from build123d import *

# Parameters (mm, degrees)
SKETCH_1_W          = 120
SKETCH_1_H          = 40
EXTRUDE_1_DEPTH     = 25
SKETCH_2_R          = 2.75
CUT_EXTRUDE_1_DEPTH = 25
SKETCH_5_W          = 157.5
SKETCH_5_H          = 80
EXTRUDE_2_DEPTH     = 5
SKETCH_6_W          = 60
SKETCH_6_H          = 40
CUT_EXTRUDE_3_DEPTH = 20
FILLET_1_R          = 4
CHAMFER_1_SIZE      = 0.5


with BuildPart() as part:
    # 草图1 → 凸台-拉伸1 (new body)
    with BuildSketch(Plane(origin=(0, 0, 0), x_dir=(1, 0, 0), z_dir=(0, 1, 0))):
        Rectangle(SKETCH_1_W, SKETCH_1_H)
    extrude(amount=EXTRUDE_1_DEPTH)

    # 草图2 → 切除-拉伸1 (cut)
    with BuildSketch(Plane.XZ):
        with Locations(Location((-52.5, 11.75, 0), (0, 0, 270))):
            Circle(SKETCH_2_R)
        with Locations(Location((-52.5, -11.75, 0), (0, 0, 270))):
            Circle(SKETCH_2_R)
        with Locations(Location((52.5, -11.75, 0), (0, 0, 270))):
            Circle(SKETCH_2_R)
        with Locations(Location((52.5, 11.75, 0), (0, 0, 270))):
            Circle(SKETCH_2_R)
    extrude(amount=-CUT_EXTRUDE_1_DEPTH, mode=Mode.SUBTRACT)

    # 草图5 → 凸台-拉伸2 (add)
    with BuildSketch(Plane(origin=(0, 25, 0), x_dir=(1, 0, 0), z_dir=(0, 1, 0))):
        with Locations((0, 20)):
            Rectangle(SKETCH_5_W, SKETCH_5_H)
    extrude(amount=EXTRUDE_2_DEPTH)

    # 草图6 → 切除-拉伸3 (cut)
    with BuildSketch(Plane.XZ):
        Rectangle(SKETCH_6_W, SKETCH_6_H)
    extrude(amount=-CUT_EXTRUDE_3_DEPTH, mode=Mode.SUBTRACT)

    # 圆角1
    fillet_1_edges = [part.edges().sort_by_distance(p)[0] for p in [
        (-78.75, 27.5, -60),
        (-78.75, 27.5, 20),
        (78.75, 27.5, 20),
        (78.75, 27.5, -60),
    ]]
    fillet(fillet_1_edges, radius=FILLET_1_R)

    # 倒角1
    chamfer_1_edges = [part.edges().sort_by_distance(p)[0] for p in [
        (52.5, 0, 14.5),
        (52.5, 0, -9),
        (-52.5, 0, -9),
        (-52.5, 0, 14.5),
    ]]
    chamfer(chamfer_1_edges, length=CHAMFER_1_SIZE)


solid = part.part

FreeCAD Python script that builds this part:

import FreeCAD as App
import Part
import Sketcher
from FreeCAD import Vector
Q = App.Units.Quantity


def edges_at(feature, points):
    """Names of the edges that pass closest to the given points."""
    edges = feature.Shape.Edges
    near = lambda p: min(range(len(edges)), key=lambda i: edges[i].distToShape(Part.Vertex(*p))[0])
    return sorted({f"Edge{near(p) + 1}" for p in points})

doc = App.newDocument("Part")
params = doc.addObject("Spreadsheet::Sheet", "Params")
for row, (alias, value) in enumerate([
    ("sketch1_width", "120 mm"),
    ("sketch1_height", "40 mm"),
    ("pad1_length", "25 mm"),
    ("sketch2_diameter", "5.5 mm"),
    ("pocket1_length", "25 mm"),
    ("sketch3_height", "80 mm"),
    ("sketch3_width", "157.5 mm"),
    ("pad2_length", "5 mm"),
    ("sketch4_width", "60 mm"),
    ("sketch4_height", "40 mm"),
    ("pocket2_length", "20 mm"),
    ("fillet_radius", "4 mm"),
    ("chamfer_size", "0.5 mm"),
], start=1):
    params.set(f"A{row}", alias)
    params.set(f"B{row}", "=" + value)
    params.setAlias(f"B{row}", alias)

body = doc.addObject("PartDesign::Body", "Body")

sketch1 = body.newObject("Sketcher::SketchObject", "Sketch")
sketch1.AttachmentSupport = (doc.getObject("XZ_Plane"), [""])
sketch1.MapMode = "FlatFace"
sketch1.addGeometry([
    Part.LineSegment(Vector(-60, -20, 0), Vector(-60, 20, 0)),
    Part.LineSegment(Vector(-60, 20, 0), Vector(60, 20, 0)),
    Part.LineSegment(Vector(60, 20, 0), Vector(60, -20, 0)),
    Part.LineSegment(Vector(60, -20, 0), Vector(-60, -20, 0)),
], False)
sketch1.addConstraint([
    Sketcher.Constraint("Coincident", 0, 2, 1, 1),
    Sketcher.Constraint("Coincident", 1, 2, 2, 1),
    Sketcher.Constraint("Coincident", 2, 2, 3, 1),
    Sketcher.Constraint("Coincident", 3, 2, 0, 1),
    Sketcher.Constraint("Vertical", 0),
    Sketcher.Constraint("Horizontal", 1),
    Sketcher.Constraint("Vertical", 2),
    Sketcher.Constraint("Horizontal", 3),
    Sketcher.Constraint("Symmetric", 0, 2, 2, 2, -1, 1),
    Sketcher.Constraint("DistanceX", 1, 1, 1, 2, Q("120 mm")),
    Sketcher.Constraint("DistanceY", 0, 1, 0, 2, Q("40 mm")),
])
sketch1.setExpression("Constraints[9]", "Params.sketch1_width")
sketch1.setExpression("Constraints[10]", "Params.sketch1_height")
pad1 = body.newObject("PartDesign::Pad", "Pad")
pad1.Profile = sketch1
pad1.setExpression("Length", "Params.pad1_length")
pad1.Reversed = True

sketch2 = body.newObject("Sketcher::SketchObject", "Sketch001")
sketch2.AttachmentSupport = (doc.getObject("XZ_Plane"), [""])
sketch2.MapMode = "FlatFace"
sketch2.addGeometry([
    Part.Circle(Vector(-52.5, 11.8, 0), Vector(0, 0, 1), 2.8),
    Part.Circle(Vector(-52.5, -11.8, 0), Vector(0, 0, 1), 2.8),
    Part.Circle(Vector(52.5, -11.8, 0), Vector(0, 0, 1), 2.8),
    Part.Circle(Vector(52.5, 11.8, 0), Vector(0, 0, 1), 2.8),
], False)
sketch2.addConstraint([
    Sketcher.Constraint("Equal", 0, 1),
    Sketcher.Constraint("Equal", 1, 2),
    Sketcher.Constraint("Equal", 2, 3),
    Sketcher.Constraint("Symmetric", 0, 3, 2, 3, -1, 1),
    Sketcher.Constraint("Symmetric", 1, 3, 3, 3, -1, 1),
    Sketcher.Constraint("Symmetric", 1, 3, 2, 3, -2),
    Sketcher.Constraint("Diameter", 0, Q("5.5 mm")),
    Sketcher.Constraint("DistanceX", 1, 3, 2, 3, Q("105 mm")),
    Sketcher.Constraint("DistanceY", 1, 3, 0, 3, Q("23.5 mm")),
])
sketch2.setExpression("Constraints[6]", "Params.sketch2_diameter")
pocket1 = body.newObject("PartDesign::Pocket", "Pocket")
pocket1.Profile = sketch2
pocket1.setExpression("Length", "Params.pocket1_length")

sketch3 = body.newObject("Sketcher::SketchObject", "Sketch002")
sketch3.AttachmentSupport = (doc.getObject("XZ_Plane"), [""])
sketch3.MapMode = "FlatFace"
sketch3.AttachmentOffset = App.Placement(Vector(0, 0, -25), App.Rotation())
sketch3.addGeometry([
    Part.LineSegment(Vector(-79, -60, 0), Vector(-79, 20, 0)),
    Part.LineSegment(Vector(-79, 20, 0), Vector(79, 20, 0)),
    Part.LineSegment(Vector(79, 20, 0), Vector(79, -60, 0)),
    Part.LineSegment(Vector(79, -60, 0), Vector(-79, -60, 0)),
], False)
sketch3.addConstraint([
    Sketcher.Constraint("Coincident", 0, 2, 1, 1),
    Sketcher.Constraint("Coincident", 1, 2, 2, 1),
    Sketcher.Constraint("Coincident", 2, 2, 3, 1),
    Sketcher.Constraint("Coincident", 3, 2, 0, 1),
    Sketcher.Constraint("Vertical", 0),
    Sketcher.Constraint("Horizontal", 1),
    Sketcher.Constraint("Vertical", 2),
    Sketcher.Constraint("Horizontal", 3),
    Sketcher.Constraint("DistanceY", 0, 1, 0, 2, Q("80 mm")),
    Sketcher.Constraint("DistanceX", 1, 1, 1, 2, Q("157.5 mm")),
    Sketcher.Constraint("DistanceY", -1, 1, 0, 2, Q("20 mm")),
    Sketcher.Constraint("DistanceX", 0, 2, -1, 1, Q("78.75 mm")),
])
sketch3.setExpression("Constraints[8]", "Params.sketch3_height")
sketch3.setExpression("Constraints[9]", "Params.sketch3_width")
pad2 = body.newObject("PartDesign::Pad", "Pad001")
pad2.Profile = sketch3
pad2.setExpression("Length", "Params.pad2_length")
pad2.Reversed = True

sketch4 = body.newObject("Sketcher::SketchObject", "Sketch003")
sketch4.AttachmentSupport = (doc.getObject("XZ_Plane"), [""])
sketch4.MapMode = "FlatFace"
sketch4.addGeometry([
    Part.LineSegment(Vector(-30, 20, 0), Vector(-30, -20, 0)),
    Part.LineSegment(Vector(-30, -20, 0), Vector(30, -20, 0)),
    Part.LineSegment(Vector(30, -20, 0), Vector(30, 20, 0)),
    Part.LineSegment(Vector(30, 20, 0), Vector(-30, 20, 0)),
], False)
sketch4.addConstraint([
    Sketcher.Constraint("Coincident", 0, 2, 1, 1),
    Sketcher.Constraint("Coincident", 1, 2, 2, 1),
    Sketcher.Constraint("Coincident", 2, 2, 3, 1),
    Sketcher.Constraint("Coincident", 3, 2, 0, 1),
    Sketcher.Constraint("Vertical", 0),
    Sketcher.Constraint("Horizontal", 1),
    Sketcher.Constraint("Vertical", 2),
    Sketcher.Constraint("Horizontal", 3),
    Sketcher.Constraint("Symmetric", 0, 2, 2, 2, -1, 1),
    Sketcher.Constraint("DistanceX", 1, 1, 1, 2, Q("60 mm")),
    Sketcher.Constraint("DistanceY", 0, 2, 0, 1, Q("40 mm")),
])
sketch4.setExpression("Constraints[9]", "Params.sketch4_width")
sketch4.setExpression("Constraints[10]", "Params.sketch4_height")
pocket2 = body.newObject("PartDesign::Pocket", "Pocket001")
pocket2.Profile = sketch4
pocket2.setExpression("Length", "Params.pocket2_length")
doc.recompute()

fillet = body.newObject("PartDesign::Fillet", "Fillet")
fillet.Base = (pocket2, edges_at(pocket2, [
    (-78.75, 27.5, -60),
    (-78.75, 27.5, 20),
    (78.75, 27.5, 20),
    (78.75, 27.5, -60),
]))
fillet.setExpression("Radius", "Params.fillet_radius")
doc.recompute()

chamfer = body.newObject("PartDesign::Chamfer", "Chamfer")
chamfer.Base = (fillet, edges_at(fillet, [
    (52.5, 0, 14.5),
    (52.5, 0, -9),
    (-52.5, 0, -9),
    (-52.5, 0, 14.5),
]))
chamfer.setExpression("Size", "Params.chamfer_size")

doc.recompute()
